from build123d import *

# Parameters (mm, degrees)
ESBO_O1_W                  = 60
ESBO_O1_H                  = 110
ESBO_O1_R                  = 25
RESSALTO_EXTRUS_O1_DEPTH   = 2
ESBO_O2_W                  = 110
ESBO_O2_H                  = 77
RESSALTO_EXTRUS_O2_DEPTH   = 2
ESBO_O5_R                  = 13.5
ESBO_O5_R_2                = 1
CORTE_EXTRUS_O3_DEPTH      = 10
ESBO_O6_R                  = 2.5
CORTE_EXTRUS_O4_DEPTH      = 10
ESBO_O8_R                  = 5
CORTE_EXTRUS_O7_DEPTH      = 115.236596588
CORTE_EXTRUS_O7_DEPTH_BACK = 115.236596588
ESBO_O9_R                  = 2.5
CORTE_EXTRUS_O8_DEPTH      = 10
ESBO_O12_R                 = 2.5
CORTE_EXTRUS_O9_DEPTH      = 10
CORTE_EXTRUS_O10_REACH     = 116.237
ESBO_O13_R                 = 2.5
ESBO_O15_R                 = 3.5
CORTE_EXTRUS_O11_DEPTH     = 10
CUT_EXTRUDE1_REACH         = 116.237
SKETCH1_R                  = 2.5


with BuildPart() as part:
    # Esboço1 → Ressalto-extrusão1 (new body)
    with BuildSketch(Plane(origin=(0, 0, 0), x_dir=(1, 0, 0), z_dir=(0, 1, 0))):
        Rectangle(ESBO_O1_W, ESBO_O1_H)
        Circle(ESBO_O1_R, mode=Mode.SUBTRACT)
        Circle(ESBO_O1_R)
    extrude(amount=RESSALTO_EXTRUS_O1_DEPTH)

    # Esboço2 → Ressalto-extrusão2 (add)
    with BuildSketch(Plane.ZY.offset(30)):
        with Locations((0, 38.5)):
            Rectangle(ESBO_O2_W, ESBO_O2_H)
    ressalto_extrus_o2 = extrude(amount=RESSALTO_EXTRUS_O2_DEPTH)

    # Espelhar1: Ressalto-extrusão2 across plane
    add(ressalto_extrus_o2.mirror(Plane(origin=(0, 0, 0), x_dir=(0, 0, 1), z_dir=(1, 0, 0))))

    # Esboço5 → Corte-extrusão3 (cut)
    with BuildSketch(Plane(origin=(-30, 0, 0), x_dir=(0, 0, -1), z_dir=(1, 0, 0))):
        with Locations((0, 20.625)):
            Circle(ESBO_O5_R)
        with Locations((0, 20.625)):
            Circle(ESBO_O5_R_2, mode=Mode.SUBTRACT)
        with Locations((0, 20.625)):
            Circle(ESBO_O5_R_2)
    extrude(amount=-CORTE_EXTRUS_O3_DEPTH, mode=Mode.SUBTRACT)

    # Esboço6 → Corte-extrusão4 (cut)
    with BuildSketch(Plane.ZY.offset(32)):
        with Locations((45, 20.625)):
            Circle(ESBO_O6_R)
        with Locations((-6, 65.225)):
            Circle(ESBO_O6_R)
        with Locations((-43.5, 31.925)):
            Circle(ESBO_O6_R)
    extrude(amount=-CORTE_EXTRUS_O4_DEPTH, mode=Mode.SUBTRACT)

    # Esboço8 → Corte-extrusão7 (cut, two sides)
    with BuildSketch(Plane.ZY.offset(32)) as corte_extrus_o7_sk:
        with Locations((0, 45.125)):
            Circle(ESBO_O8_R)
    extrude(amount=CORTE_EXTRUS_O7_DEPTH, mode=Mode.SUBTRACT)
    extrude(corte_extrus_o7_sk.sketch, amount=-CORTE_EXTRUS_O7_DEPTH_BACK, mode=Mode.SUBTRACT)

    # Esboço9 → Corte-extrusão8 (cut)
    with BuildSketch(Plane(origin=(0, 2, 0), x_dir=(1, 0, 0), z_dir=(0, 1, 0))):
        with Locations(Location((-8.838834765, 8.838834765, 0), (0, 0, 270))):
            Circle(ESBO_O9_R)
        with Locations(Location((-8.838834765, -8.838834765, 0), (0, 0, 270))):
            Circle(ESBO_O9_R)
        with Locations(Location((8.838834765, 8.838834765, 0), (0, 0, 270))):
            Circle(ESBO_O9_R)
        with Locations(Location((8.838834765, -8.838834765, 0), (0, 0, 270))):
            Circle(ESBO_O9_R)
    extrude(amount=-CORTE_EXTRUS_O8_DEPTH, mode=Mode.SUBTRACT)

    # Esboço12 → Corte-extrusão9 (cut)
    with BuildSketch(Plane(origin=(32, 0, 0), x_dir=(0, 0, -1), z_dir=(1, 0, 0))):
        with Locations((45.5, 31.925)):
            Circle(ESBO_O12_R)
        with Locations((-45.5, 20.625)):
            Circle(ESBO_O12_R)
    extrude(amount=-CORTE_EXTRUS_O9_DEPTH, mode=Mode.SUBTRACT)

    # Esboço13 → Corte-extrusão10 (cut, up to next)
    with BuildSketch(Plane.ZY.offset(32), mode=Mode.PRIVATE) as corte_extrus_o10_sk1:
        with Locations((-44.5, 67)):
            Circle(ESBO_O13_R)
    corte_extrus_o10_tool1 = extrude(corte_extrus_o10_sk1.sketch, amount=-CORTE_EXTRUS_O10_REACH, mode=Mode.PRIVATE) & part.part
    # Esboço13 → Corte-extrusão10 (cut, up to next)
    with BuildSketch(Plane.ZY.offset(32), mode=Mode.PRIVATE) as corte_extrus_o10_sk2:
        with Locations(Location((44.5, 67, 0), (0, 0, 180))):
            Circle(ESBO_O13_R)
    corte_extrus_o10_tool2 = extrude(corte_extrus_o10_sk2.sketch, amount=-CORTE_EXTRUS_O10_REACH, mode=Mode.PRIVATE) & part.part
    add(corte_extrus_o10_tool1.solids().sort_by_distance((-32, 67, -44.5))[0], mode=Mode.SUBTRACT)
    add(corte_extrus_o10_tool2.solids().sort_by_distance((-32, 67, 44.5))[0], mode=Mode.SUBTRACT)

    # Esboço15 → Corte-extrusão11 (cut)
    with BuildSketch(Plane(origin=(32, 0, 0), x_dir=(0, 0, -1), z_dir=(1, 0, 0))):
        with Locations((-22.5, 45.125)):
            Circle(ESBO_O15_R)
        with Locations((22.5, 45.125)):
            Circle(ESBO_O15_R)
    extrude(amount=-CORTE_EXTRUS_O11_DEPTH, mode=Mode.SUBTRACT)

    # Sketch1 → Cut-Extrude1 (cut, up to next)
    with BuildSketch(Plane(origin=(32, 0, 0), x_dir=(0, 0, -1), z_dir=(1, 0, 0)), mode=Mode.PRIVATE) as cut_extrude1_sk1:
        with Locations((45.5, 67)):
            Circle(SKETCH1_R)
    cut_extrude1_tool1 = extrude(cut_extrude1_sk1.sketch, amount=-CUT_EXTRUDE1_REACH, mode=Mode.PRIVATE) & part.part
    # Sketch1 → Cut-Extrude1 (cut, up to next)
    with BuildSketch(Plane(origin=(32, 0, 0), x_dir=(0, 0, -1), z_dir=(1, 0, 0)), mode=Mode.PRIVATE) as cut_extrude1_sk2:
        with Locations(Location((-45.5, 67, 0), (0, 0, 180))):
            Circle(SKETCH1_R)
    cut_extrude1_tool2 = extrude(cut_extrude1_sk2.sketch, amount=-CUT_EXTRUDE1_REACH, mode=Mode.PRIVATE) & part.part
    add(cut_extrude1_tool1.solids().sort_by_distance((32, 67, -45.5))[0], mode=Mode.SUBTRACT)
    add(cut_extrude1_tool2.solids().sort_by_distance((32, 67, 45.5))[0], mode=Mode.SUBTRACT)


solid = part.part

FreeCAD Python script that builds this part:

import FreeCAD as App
import Part
import Sketcher
from FreeCAD import Vector
Q = App.Units.Quantity

doc = App.newDocument("Part")
body = doc.addObject("PartDesign::Body", "Body")

# Sketch on XZ plane
sketch1 = body.newObject("Sketcher::SketchObject", "Sketch")
sketch1.AttachmentSupport = (doc.getObject("XZ_Plane"), [""])
sketch1.MapMode = "FlatFace"
sketch1.addGeometry(Part.LineSegment(Vector(-30, -55, 0), Vector(-30, 55, 0)), False)
sketch1.addGeometry(Part.LineSegment(Vector(-30, 55, 0), Vector(30, 55, 0)), False)
sketch1.addGeometry(Part.LineSegment(Vector(30, 55, 0), Vector(30, -55, 0)), False)
sketch1.addGeometry(Part.LineSegment(Vector(30, -55, 0), Vector(-30, -55, 0)), False)
sketch1.addConstraint(Sketcher.Constraint("Coincident", 0, 2, 1, 1))
sketch1.addConstraint(Sketcher.Constraint("Coincident", 1, 2, 2, 1))
sketch1.addConstraint(Sketcher.Constraint("Coincident", 2, 2, 3, 1))
sketch1.addConstraint(Sketcher.Constraint("Coincident", 3, 2, 0, 1))
sketch1.addConstraint(Sketcher.Constraint("Vertical", 0))
sketch1.addConstraint(Sketcher.Constraint("Horizontal", 1))
sketch1.addConstraint(Sketcher.Constraint("Vertical", 2))
sketch1.addConstraint(Sketcher.Constraint("Horizontal", 3))
sketch1.addConstraint(Sketcher.Constraint("Symmetric", 0, 2, 2, 2, -1, 1))
sketch1.addConstraint(Sketcher.Constraint("DistanceX", 1, 1, 1, 2, Q("60 mm")))
sketch1.addConstraint(Sketcher.Constraint("DistanceY", 0, 1, 0, 2, Q("110 mm")))
pad1 = body.newObject("PartDesign::Pad", "Pad")
pad1.Profile = sketch1
pad1.Length = 2
pad1.Reversed = True

# Sketch on YZ plane
sketch2 = body.newObject("Sketcher::SketchObject", "Sketch001")
sketch2.AttachmentSupport = (doc.getObject("YZ_Plane"), [""])
sketch2.MapMode = "FlatFace"
sketch2.AttachmentOffset = App.Placement(Vector(0, 0, -30), App.Rotation())
sketch2.addGeometry(Part.LineSegment(Vector(77, -55, 0), Vector(0, -55, 0)), False)
sketch2.addGeometry(Part.LineSegment(Vector(0, -55, 0), Vector(0, 55, 0)), False)
sketch2.addGeometry(Part.LineSegment(Vector(0, 55, 0), Vector(77, 55, 0)), False)
sketch2.addGeometry(Part.LineSegment(Vector(77, 55, 0), Vector(77, -55, 0)), False)
sketch2.addConstraint(Sketcher.Constraint("Coincident", 0, 2, 1, 1))
sketch2.addConstraint(Sketcher.Constraint("Coincident", 1, 2, 2, 1))
sketch2.addConstraint(Sketcher.Constraint("Coincident", 2, 2, 3, 1))
sketch2.addConstraint(Sketcher.Constraint("Coincident", 3, 2, 0, 1))
sketch2.addConstraint(Sketcher.Constraint("Horizontal", 0))
sketch2.addConstraint(Sketcher.Constraint("Vertical", 1))
sketch2.addConstraint(Sketcher.Constraint("Horizontal", 2))
sketch2.addConstraint(Sketcher.Constraint("Vertical", 3))
sketch2.addConstraint(Sketcher.Constraint("Symmetric", 0, 2, 1, 2, -1, 1))
sketch2.addConstraint(Sketcher.Constraint("DistanceX", 0, 2, 0, 1, Q("77 mm")))
sketch2.addConstraint(Sketcher.Constraint("DistanceY", 1, 1, 1, 2, Q("110 mm")))
pad2 = body.newObject("PartDesign::Pad", "Pad001")
pad2.Profile = sketch2
pad2.Length = 2
pad2.Reversed = True
doc.recompute()

mirrored = body.newObject("PartDesign::Mirrored", "Mirrored")
mirrored.Originals = [pad2]
mirrored.MirrorPlane = (doc.getObject("YZ_Plane"), [""])
body.Tip = mirrored

# Sketch on YZ plane
sketch3 = body.newObject("Sketcher::SketchObject", "Sketch002")
sketch3.AttachmentSupport = (doc.getObject("YZ_Plane"), [""])
sketch3.MapMode = "FlatFace"
sketch3.AttachmentOffset = App.Placement(Vector(0, 0, -30), App.Rotation())
sketch3.addGeometry(Part.Circle(Vector(20.625, 0, 0), Vector(0, 0, 1), 13.5), False)
sketch3.addConstraint(Sketcher.Constraint("PointOnObject", 0, 3, -1))
sketch3.addConstraint(Sketcher.Constraint("Diameter", 0, Q("27 mm")))
sketch3.addConstraint(Sketcher.Constraint("DistanceX", -1, 1, 0, 3, Q("20.625 mm")))
pocket1 = body.newObject("PartDesign::Pocket", "Pocket")
pocket1.Profile = sketch3
pocket1.Length = 10

# Sketch on YZ plane
sketch4 = body.newObject("Sketcher::SketchObject", "Sketch003")
sketch4.AttachmentSupport = (doc.getObject("YZ_Plane"), [""])
sketch4.MapMode = "FlatFace"
sketch4.AttachmentOffset = App.Placement(Vector(0, 0, -32), App.Rotation())
sketch4.addGeometry(Part.Circle(Vector(20.625, 45, 0), Vector(0, 0, 1), 2.5), False)
sketch4.addGeometry(Part.Circle(Vector(65.225, -6, 0), Vector(0, 0, 1), 2.5), False)
sketch4.addGeometry(Part.Circle(Vector(31.925, -43.5, 0), Vector(0, 0, 1), 2.5), False)
sketch4.addConstraint(Sketcher.Constraint("Equal", 0, 1))
sketch4.addConstraint(Sketcher.Constraint("Equal", 1, 2))
sketch4.addConstraint(Sketcher.Constraint("Diameter", 0, Q("5 mm")))
sketch4.addConstraint(Sketcher.Constraint("DistanceY", -1, 1, 0, 3, Q("45 mm")))
sketch4.addConstraint(Sketcher.Constraint("DistanceY", 1, 3, -1, 1, Q("6 mm")))
sketch4.addConstraint(Sketcher.Constraint("DistanceY", 2, 3, -1, 1, Q("43.5 mm")))
sketch4.addConstraint(Sketcher.Constraint("DistanceX", 0, 3, 1, 3, Q("44.6 mm")))
sketch4.addConstraint(Sketcher.Constraint("DistanceX", 2, 3, 1, 3, Q("33.3 mm")))
sketch4.addConstraint(Sketcher.Constraint("DistanceX", -1, 1, 0, 3, Q("20.625 mm")))
pocket2 = body.newObject("PartDesign::Pocket", "Pocket001")
pocket2.Profile = sketch4
pocket2.Length = 10
pocket2.Reversed = True

# Sketch on YZ plane
sketch5 = body.newObject("Sketcher::SketchObject", "Sketch004")
sketch5.AttachmentSupport = (doc.getObject("YZ_Plane"), [""])
sketch5.MapMode = "FlatFace"
sketch5.AttachmentOffset = App.Placement(Vector(0, 0, -32), App.Rotation())
sketch5.addGeometry(Part.Circle(Vector(45.125, 0, 0), Vector(0, 0, 1), 5), False)
sketch5.addConstraint(Sketcher.Constraint("PointOnObject", 0, 3, -1))
sketch5.addConstraint(Sketcher.Constraint("Diameter", 0, Q("10 mm")))
sketch5.addConstraint(Sketcher.Constraint("DistanceX", -1, 1, 0, 3, Q("45.125 mm")))
pocket3 = body.newObject("PartDesign::Pocket", "Pocket002")
pocket3.Profile = sketch5
pocket3.Type = "ThroughAll"
pocket3.Midplane = True

# Sketch on XZ plane
sketch6 = body.newObject("Sketcher::SketchObject", "Sketch005")
sketch6.AttachmentSupport = (doc.getObject("XZ_Plane"), [""])
sketch6.MapMode = "FlatFace"
sketch6.AttachmentOffset = App.Placement(Vector(0, 0, -2), App.Rotation())
sketch6.addGeometry(Part.Circle(Vector(-8.838835, -8.838835, 0), Vector(0, 0, 1), 2.5), False)
sketch6.addGeometry(Part.Circle(Vector(-8.838835, 8.838835, 0), Vector(0, 0, 1), 2.5), False)
sketch6.addGeometry(Part.Circle(Vector(8.838835, -8.838835, 0), Vector(0, 0, 1), 2.5), False)
sketch6.addGeometry(Part.Circle(Vector(8.838835, 8.838835, 0), Vector(0, 0, 1), 2.5), False)
sketch6.addConstraint(Sketcher.Constraint("Equal", 0, 1))
sketch6.addConstraint(Sketcher.Constraint("Equal", 1, 2))
sketch6.addConstraint(Sketcher.Constraint("Equal", 2, 3))
sketch6.addConstraint(Sketcher.Constraint("Symmetric", 1, 3, 2, 3, -1, 1))
sketch6.addConstraint(Sketcher.Constraint("Symmetric", 0, 3, 3, 3, -1, 1))
sketch6.addConstraint(Sketcher.Constraint("Symmetric", 0, 3, 2, 3, -2))
sketch6.addConstraint(Sketcher.Constraint("Diameter", 0, Q("5 mm")))
sketch6.addConstraint(Sketcher.Constraint("DistanceY", 0, 3, 1, 3, Q("17.67767 mm")))
sketch6.addConstraint(Sketcher.Constraint("DistanceX", 0, 3, 2, 3, Q("17.67767 mm")))
pocket4 = body.newObject("PartDesign::Pocket", "Pocket003")
pocket4.Profile = sketch6
pocket4.Length = 10
pocket4.Reversed = True

# Sketch on YZ plane
sketch7 = body.newObject("Sketcher::SketchObject", "Sketch006")
sketch7.AttachmentSupport = (doc.getObject("YZ_Plane"), [""])
sketch7.MapMode = "FlatFace"
sketch7.AttachmentOffset = App.Placement(Vector(0, 0, 32), App.Rotation())
sketch7.addGeometry(Part.Circle(Vector(31.925, -45.5, 0), Vector(0, 0, 1), 2.5), False)
sketch7.addGeometry(Part.Circle(Vector(20.625, 45.5, 0), Vector(0, 0, 1), 2.5), False)
sketch7.addConstraint(Sketcher.Constraint("Equal", 0, 1))
sketch7.addConstraint(Sketcher.Constraint("Diameter", 0, Q("5 mm")))
sketch7.addConstraint(Sketcher.Constraint("DistanceY", 0, 3, 1, 3, Q("91 mm")))
sketch7.addConstraint(Sketcher.Constraint("DistanceY", 0, 3, -1, 1, Q("45.5 mm")))
sketch7.addConstraint(Sketcher.Constraint("DistanceX", 1, 3, 0, 3, Q("11.3 mm")))
sketch7.addConstraint(Sketcher.Constraint("DistanceX", -1, 1, 0, 3, Q("31.925 mm")))
pocket5 = body.newObject("PartDesign::Pocket", "Pocket004")
pocket5.Profile = sketch7
pocket5.Length = 10

# Sketch on YZ plane
sketch8 = body.newObject("Sketcher::SketchObject", "Sketch007")
sketch8.AttachmentSupport = (doc.getObject("YZ_Plane"), [""])
sketch8.MapMode = "FlatFace"
sketch8.AttachmentOffset = App.Placement(Vector(0, 0, -32), App.Rotation())
sketch8.addGeometry(Part.Circle(Vector(67, -44.5, 0), Vector(0, 0, 1), 2.5), False)
sketch8.addConstraint(Sketcher.Constraint("Diameter", 0, Q("5 mm")))
sketch8.addConstraint(Sketcher.Constraint("DistanceX", -1, 1, 0, 3, Q("67 mm")))
sketch8.addConstraint(Sketcher.Constraint("DistanceY", 0, 3, -1, 1, Q("44.5 mm")))
pocket6 = body.newObject("PartDesign::Pocket", "Pocket005")
pocket6.Profile = sketch8
pocket6.Type = "UpToFirst"
pocket6.Reversed = True

# Sketch on YZ plane
sketch9 = body.newObject("Sketcher::SketchObject", "Sketch008")
sketch9.AttachmentSupport = (doc.getObject("YZ_Plane"), [""])
sketch9.MapMode = "FlatFace"
sketch9.AttachmentOffset = App.Placement(Vector(0, 0, -32), App.Rotation())
sketch9.addGeometry(Part.Circle(Vector(67, 44.5, 0), Vector(0, 0, 1), 2.5), False)
sketch9.addConstraint(Sketcher.Constraint("Diameter", 0, Q("5 mm")))
sketch9.addConstraint(Sketcher.Constraint("DistanceX", -1, 1, 0, 3, Q("67 mm")))
sketch9.addConstraint(Sketcher.Constraint("DistanceY", -1, 1, 0, 3, Q("44.5 mm")))
pocket7 = body.newObject("PartDesign::Pocket", "Pocket006")
pocket7.Profile = sketch9
pocket7.Type = "UpToFirst"
pocket7.Reversed = True

# Sketch on YZ plane
sketch10 = body.newObject("Sketcher::SketchObject", "Sketch009")
sketch10.AttachmentSupport = (doc.getObject("YZ_Plane"), [""])
sketch10.MapMode = "FlatFace"
sketch10.AttachmentOffset = App.Placement(Vector(0, 0, 32), App.Rotation())
sketch10.addGeometry(Part.Circle(Vector(45.125, 22.5, 0), Vector(0, 0, 1), 3.5), False)
sketch10.addGeometry(Part.Circle(Vector(45.125, -22.5, 0), Vector(0, 0, 1), 3.5), False)
sketch10.addConstraint(Sketcher.Constraint("Equal", 0, 1))
sketch10.addConstraint(Sketcher.Constraint("Symmetric", 0, 3, 1, 3, -1))
sketch10.addConstraint(Sketcher.Constraint("Diameter", 0, Q("7 mm")))
sketch10.addConstraint(Sketcher.Constraint("DistanceY", 1, 3, 0, 3, Q("45 mm")))
sketch10.addConstraint(Sketcher.Constraint("DistanceX", -1, 1, 0, 3, Q("45.125 mm")))
pocket8 = body.newObject("PartDesign::Pocket", "Pocket007")
pocket8.Profile = sketch10
pocket8.Length = 10

# Sketch on YZ plane
sketch11 = body.newObject("Sketcher::SketchObject", "Sketch010")
sketch11.AttachmentSupport = (doc.getObject("YZ_Plane"), [""])
sketch11.MapMode = "FlatFace"
sketch11.AttachmentOffset = App.Placement(Vector(0, 0, 32), App.Rotation())
sketch11.addGeometry(Part.Circle(Vector(67, -45.5, 0), Vector(0, 0, 1), 2.5), False)
sketch11.addConstraint(Sketcher.Constraint("Diameter", 0, Q("5 mm")))
sketch11.addConstraint(Sketcher.Constraint("DistanceX", -1, 1, 0, 3, Q("67 mm")))
sketch11.addConstraint(Sketcher.Constraint("DistanceY", 0, 3, -1, 1, Q("45.5 mm")))
pocket9 = body.newObject("PartDesign::Pocket", "Pocket008")
pocket9.Profile = sketch11
pocket9.Type = "UpToFirst"

# Sketch on YZ plane
sketch12 = body.newObject("Sketcher::SketchObject", "Sketch011")
sketch12.AttachmentSupport = (doc.getObject("YZ_Plane"), [""])
sketch12.MapMode = "FlatFace"
sketch12.AttachmentOffset = App.Placement(Vector(0, 0, 32), App.Rotation())
sketch12.addGeometry(Part.Circle(Vector(67, 45.5, 0), Vector(0, 0, 1), 2.5), False)
sketch12.addConstraint(Sketcher.Constraint("Diameter", 0, Q("5 mm")))
sketch12.addConstraint(Sketcher.Constraint("DistanceX", -1, 1, 0, 3, Q("67 mm")))
sketch12.addConstraint(Sketcher.Constraint("DistanceY", -1, 1, 0, 3, Q("45.5 mm")))
pocket10 = body.newObject("PartDesign::Pocket", "Pocket009")
pocket10.Profile = sketch12
pocket10.Type = "UpToFirst"

doc.recompute()
